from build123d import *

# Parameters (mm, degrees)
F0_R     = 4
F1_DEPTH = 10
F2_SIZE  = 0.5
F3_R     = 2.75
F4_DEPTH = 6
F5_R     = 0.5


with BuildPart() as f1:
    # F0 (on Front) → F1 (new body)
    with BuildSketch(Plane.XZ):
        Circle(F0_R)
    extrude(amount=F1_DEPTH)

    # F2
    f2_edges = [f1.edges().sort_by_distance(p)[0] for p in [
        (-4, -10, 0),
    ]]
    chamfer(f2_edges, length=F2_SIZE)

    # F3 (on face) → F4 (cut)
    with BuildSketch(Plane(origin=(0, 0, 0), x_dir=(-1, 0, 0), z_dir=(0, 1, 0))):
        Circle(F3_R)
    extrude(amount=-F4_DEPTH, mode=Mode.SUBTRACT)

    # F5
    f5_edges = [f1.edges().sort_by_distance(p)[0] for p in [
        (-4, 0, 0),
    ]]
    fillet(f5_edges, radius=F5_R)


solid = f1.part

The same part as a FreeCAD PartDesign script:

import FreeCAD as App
import Part
import Sketcher

V = App.Vector


def edges_at(feature, points):
    """Names of the edges that pass closest to the given points."""
    edges = feature.Shape.Edges
    near = lambda p: min(range(len(edges)), key=lambda i: edges[i].distToShape(Part.Vertex(*p))[0])
    return sorted({f"Edge{near(p) + 1}" for p in points})

doc = App.newDocument("Part")
body = doc.addObject("PartDesign::Body", "Body")

sketch1 = body.newObject("Sketcher::SketchObject", "Sketch")
sketch1.AttachmentSupport = (doc.getObject("XZ_Plane"), [""])
sketch1.MapMode = "FlatFace"
sketch1.addGeometry(Part.Circle(V(0, 0, 0), V(0, 0, 1), 4), False)
sketch1.addConstraint(Sketcher.Constraint("Coincident", 0, 3, -1, 1))
sketch1.addConstraint(Sketcher.Constraint("Diameter", 0, 8.0))
pad1 = body.newObject("PartDesign::Pad", "Pad")
pad1.Profile = sketch1
pad1.Length = 10
doc.recompute()

chamfer = body.newObject("PartDesign::Chamfer", "Chamfer")
chamfer.Base = (pad1, edges_at(pad1, [(-4, -10, 0)]))
chamfer.Size = 0.5

sketch2 = body.newObject("Sketcher::SketchObject", "Sketch001")
sketch2.AttachmentSupport = (doc.getObject("XZ_Plane"), [""])
sketch2.MapMode = "FlatFace"
sketch2.addGeometry(Part.Circle(V(0, 0, 0), V(0, 0, 1), 2.8), False)
sketch2.addConstraint(Sketcher.Constraint("Coincident", 0, 3, -1, 1))
sketch2.addConstraint(Sketcher.Constraint("Diameter", 0, 5.5))
pocket1 = body.newObject("PartDesign::Pocket", "Pocket")
pocket1.Profile = sketch2
pocket1.Length = 6
pocket1.Reversed = True
doc.recompute()

fillet = body.newObject("PartDesign::Fillet", "Fillet")
fillet.Base = (pocket1, edges_at(pocket1, [(-4, 0, 0)]))
fillet.Radius = 0.5

doc.recompute()
